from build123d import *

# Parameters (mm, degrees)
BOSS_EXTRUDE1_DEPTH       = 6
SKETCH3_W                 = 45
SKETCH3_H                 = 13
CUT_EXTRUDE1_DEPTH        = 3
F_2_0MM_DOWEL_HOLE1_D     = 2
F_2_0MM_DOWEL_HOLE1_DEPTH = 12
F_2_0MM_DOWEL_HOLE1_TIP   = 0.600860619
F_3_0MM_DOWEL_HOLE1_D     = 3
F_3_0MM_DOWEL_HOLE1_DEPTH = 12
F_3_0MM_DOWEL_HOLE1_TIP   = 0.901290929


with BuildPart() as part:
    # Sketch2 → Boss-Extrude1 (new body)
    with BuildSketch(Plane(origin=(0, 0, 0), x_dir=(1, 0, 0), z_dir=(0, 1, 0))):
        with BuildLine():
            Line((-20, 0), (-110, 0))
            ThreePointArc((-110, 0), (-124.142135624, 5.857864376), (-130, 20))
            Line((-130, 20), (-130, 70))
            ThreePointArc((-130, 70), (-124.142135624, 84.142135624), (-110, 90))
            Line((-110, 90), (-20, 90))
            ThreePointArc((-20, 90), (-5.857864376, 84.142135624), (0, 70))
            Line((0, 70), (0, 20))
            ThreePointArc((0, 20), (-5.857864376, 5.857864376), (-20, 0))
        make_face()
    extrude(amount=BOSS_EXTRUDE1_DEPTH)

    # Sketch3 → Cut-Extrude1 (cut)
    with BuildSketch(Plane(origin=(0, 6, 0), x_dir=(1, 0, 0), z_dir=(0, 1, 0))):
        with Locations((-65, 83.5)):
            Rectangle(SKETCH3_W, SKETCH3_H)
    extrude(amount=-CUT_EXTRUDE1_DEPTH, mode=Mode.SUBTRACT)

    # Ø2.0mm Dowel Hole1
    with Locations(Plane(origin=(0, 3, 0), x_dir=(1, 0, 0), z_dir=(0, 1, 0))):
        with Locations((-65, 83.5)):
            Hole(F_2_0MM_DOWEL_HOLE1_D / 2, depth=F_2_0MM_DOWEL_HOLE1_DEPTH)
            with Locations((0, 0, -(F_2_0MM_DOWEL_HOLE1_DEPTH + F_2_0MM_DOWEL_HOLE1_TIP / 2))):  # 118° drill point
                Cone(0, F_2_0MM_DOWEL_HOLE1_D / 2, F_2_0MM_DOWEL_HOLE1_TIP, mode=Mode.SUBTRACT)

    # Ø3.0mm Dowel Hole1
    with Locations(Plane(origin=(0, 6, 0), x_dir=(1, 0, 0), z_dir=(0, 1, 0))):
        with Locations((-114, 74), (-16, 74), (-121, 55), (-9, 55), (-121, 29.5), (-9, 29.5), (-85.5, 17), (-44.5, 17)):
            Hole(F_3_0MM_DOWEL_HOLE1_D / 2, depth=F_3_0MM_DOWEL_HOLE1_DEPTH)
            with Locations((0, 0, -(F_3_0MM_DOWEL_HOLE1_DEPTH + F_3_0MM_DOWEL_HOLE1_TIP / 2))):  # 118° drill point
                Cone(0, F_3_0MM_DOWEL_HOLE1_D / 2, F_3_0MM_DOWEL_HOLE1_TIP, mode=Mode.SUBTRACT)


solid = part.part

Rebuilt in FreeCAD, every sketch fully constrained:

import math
import FreeCAD as App
import Part
import Sketcher
Q = App.Units.Quantity


def add_polygon(sketch, points):
    """Adds a closed chain of lines whose ends are joined by coincident constraints."""
    first, n = sketch.GeometryCount, len(points)
    for a, b in zip(points, points[1:] + points[:1]):
        sketch.addGeometry(Part.LineSegment(App.Vector(*a, 0), App.Vector(*b, 0)), False)
    for i in range(n):
        sketch.addConstraint(Sketcher.Constraint("Coincident", first + i, 2, first + (i + 1) % n, 1))

doc = App.newDocument("Part")
body = doc.addObject("PartDesign::Body", "Body")

# Sketch on XZ plane
sketch1 = body.newObject("Sketcher::SketchObject", "Sketch")
sketch1.AttachmentSupport = (doc.getObject("XZ_Plane"), [""])
sketch1.MapMode = "FlatFace"
sketch1.addGeometry(Part.LineSegment(App.Vector(-110, 0, 0), App.Vector(-20, 0, 0)), False)
sketch1.addGeometry(Part.ArcOfCircle(Part.Circle(App.Vector(-20, -20, 0), App.Vector(0, 0, 1), 20), math.radians(0), math.radians(90)), False)
sketch1.addGeometry(Part.LineSegment(App.Vector(0, -20, 0), App.Vector(0, -70, 0)), False)
sketch1.addGeometry(Part.ArcOfCircle(Part.Circle(App.Vector(-20, -70, 0), App.Vector(0, 0, 1), 20), math.radians(-90), math.radians(0)), False)
sketch1.addGeometry(Part.LineSegment(App.Vector(-20, -90, 0), App.Vector(-110, -90, 0)), False)
sketch1.addGeometry(Part.ArcOfCircle(Part.Circle(App.Vector(-110, -70, 0), App.Vector(0, 0, 1), 20), math.radians(180), math.radians(270)), False)
sketch1.addGeometry(Part.LineSegment(App.Vector(-130, -70, 0), App.Vector(-130, -20, 0)), False)
sketch1.addGeometry(Part.ArcOfCircle(Part.Circle(App.Vector(-110, -20, 0), App.Vector(0, 0, 1), 20), math.radians(90), math.radians(180)), False)
sketch1.addConstraint(Sketcher.Constraint("Tangent", 0, 2, 1, 2))
sketch1.addConstraint(Sketcher.Constraint("Tangent", 1, 1, 2, 1))
sketch1.addConstraint(Sketcher.Constraint("Tangent", 2, 2, 3, 2))
sketch1.addConstraint(Sketcher.Constraint("Tangent", 3, 1, 4, 1))
sketch1.addConstraint(Sketcher.Constraint("Tangent", 4, 2, 5, 2))
sketch1.addConstraint(Sketcher.Constraint("Tangent", 5, 1, 6, 1))
sketch1.addConstraint(Sketcher.Constraint("Tangent", 6, 2, 7, 2))
sketch1.addConstraint(Sketcher.Constraint("Tangent", 7, 1, 0, 1))
sketch1.addConstraint(Sketcher.Constraint("Horizontal", 0))
sketch1.addConstraint(Sketcher.Constraint("Vertical", 2))
sketch1.addConstraint(Sketcher.Constraint("Horizontal", 4))
sketch1.addConstraint(Sketcher.Constraint("Vertical", 6))
sketch1.addConstraint(Sketcher.Constraint("Equal", 1, 3))
sketch1.addConstraint(Sketcher.Constraint("Equal", 3, 5))
sketch1.addConstraint(Sketcher.Constraint("Equal", 5, 7))
sketch1.addConstraint(Sketcher.Constraint("PointOnObject", 0, 2, -1))
sketch1.addConstraint(Sketcher.Constraint("PointOnObject", 1, 1, -2))
sketch1.addConstraint(Sketcher.Constraint("Radius", 1, Q("20 mm")))
sketch1.addConstraint(Sketcher.Constraint("DistanceX", 0, 1, 0, 2, Q("90 mm")))
sketch1.addConstraint(Sketcher.Constraint("DistanceY", 2, 2, 2, 1, Q("50 mm")))
pad1 = body.newObject("PartDesign::Pad", "Pad")
pad1.Profile = sketch1
pad1.Length = 6
pad1.Reversed = True

# Sketch on XZ plane
sketch2 = body.newObject("Sketcher::SketchObject", "Sketch001")
sketch2.AttachmentSupport = (doc.getObject("XZ_Plane"), [""])
sketch2.MapMode = "FlatFace"
sketch2.AttachmentOffset = App.Placement(App.Vector(0, 0, -6), App.Rotation())
add_polygon(sketch2, [(-88, -90), (-88, -77), (-42, -77), (-42, -90)])  # lines 0-3
sketch2.addConstraint(Sketcher.Constraint("Vertical", 0))
sketch2.addConstraint(Sketcher.Constraint("Horizontal", 1))
sketch2.addConstraint(Sketcher.Constraint("Vertical", 2))
sketch2.addConstraint(Sketcher.Constraint("Horizontal", 3))
sketch2.addConstraint(Sketcher.Constraint("DistanceX", 1, 1, 1, 2, Q("45 mm")))
sketch2.addConstraint(Sketcher.Constraint("DistanceY", 0, 1, 0, 2, Q("13 mm")))
sketch2.addConstraint(Sketcher.Constraint("DistanceY", 0, 2, -1, 1, Q("77 mm")))
sketch2.addConstraint(Sketcher.Constraint("DistanceX", 0, 2, -1, 1, Q("87.5 mm")))
pocket1 = body.newObject("PartDesign::Pocket", "Pocket")
pocket1.Profile = sketch2
pocket1.Length = 3
pocket1.Reversed = True

# Sketch on XZ plane
sketch3 = body.newObject("Sketcher::SketchObject", "Sketch002")
sketch3.AttachmentSupport = (doc.getObject("XZ_Plane"), [""])
sketch3.MapMode = "FlatFace"
sketch3.AttachmentOffset = App.Placement(App.Vector(0, 0, -3), App.Rotation())
sketch3.addGeometry(Part.Circle(App.Vector(-65, -83.5, 0), App.Vector(0, 0, 1), 1), False)
sketch3.addConstraint(Sketcher.Constraint("Diameter", 0, Q("2 mm")))
sketch3.addConstraint(Sketcher.Constraint("DistanceX", 0, 3, -1, 1, Q("65 mm")))
sketch3.addConstraint(Sketcher.Constraint("DistanceY", 0, 3, -1, 1, Q("83.5 mm")))
doc.recompute()
hole = body.newObject("PartDesign::Hole", "Hole")
hole.Profile = sketch3
hole.ThreadType = "None"
hole.Diameter = 2
hole.DepthType = "Dimension"
hole.Depth = 12
hole.DrillPoint = "Angled"
hole.DrillPointAngle = 118
hole.Reversed = True

# Sketch on XZ plane
sketch4 = body.newObject("Sketcher::SketchObject", "Sketch003")
sketch4.AttachmentSupport = (doc.getObject("XZ_Plane"), [""])
sketch4.MapMode = "FlatFace"
sketch4.AttachmentOffset = App.Placement(App.Vector(0, 0, -6), App.Rotation())
sketch4.addGeometry(Part.Circle(App.Vector(-114, -74, 0), App.Vector(0, 0, 1), 1.5), False)
sketch4.addGeometry(Part.Circle(App.Vector(-16, -74, 0), App.Vector(0, 0, 1), 1.5), False)
sketch4.addGeometry(Part.Circle(App.Vector(-121, -55, 0), App.Vector(0, 0, 1), 1.5), False)
sketch4.addGeometry(Part.Circle(App.Vector(-9, -55, 0), App.Vector(0, 0, 1), 1.5), False)
sketch4.addGeometry(Part.Circle(App.Vector(-121, -29.5, 0), App.Vector(0, 0, 1), 1.5), False)
sketch4.addGeometry(Part.Circle(App.Vector(-9, -29.5, 0), App.Vector(0, 0, 1), 1.5), False)
sketch4.addGeometry(Part.Circle(App.Vector(-85.5, -17, 0), App.Vector(0, 0, 1), 1.5), False)
sketch4.addGeometry(Part.Circle(App.Vector(-44.5, -17, 0), App.Vector(0, 0, 1), 1.5), False)
sketch4.addConstraint(Sketcher.Constraint("Equal", 0, 1))
sketch4.addConstraint(Sketcher.Constraint("Equal", 1, 2))
sketch4.addConstraint(Sketcher.Constraint("Equal", 2, 3))
sketch4.addConstraint(Sketcher.Constraint("Equal", 3, 4))
sketch4.addConstraint(Sketcher.Constraint("Equal", 4, 5))
sketch4.addConstraint(Sketcher.Constraint("Equal", 5, 6))
sketch4.addConstraint(Sketcher.Constraint("Equal", 6, 7))
sketch4.addConstraint(Sketcher.Constraint("Horizontal", 0, 3, 1, 3))
sketch4.addConstraint(Sketcher.Constraint("Horizontal", 2, 3, 3, 3))
sketch4.addConstraint(Sketcher.Constraint("Horizontal", 4, 3, 5, 3))
sketch4.addConstraint(Sketcher.Constraint("Horizontal", 6, 3, 7, 3))
sketch4.addConstraint(Sketcher.Constraint("Vertical", 2, 3, 4, 3))
sketch4.addConstraint(Sketcher.Constraint("Vertical", 3, 3, 5, 3))
sketch4.addConstraint(Sketcher.Constraint("Diameter", 0, Q("3 mm")))
sketch4.addConstraint(Sketcher.Constraint("DistanceX", 0, 3, -1, 1, Q("114 mm")))
sketch4.addConstraint(Sketcher.Constraint("DistanceY", 0, 3, -1, 1, Q("74 mm")))
sketch4.addConstraint(Sketcher.Constraint("DistanceX", 1, 3, -1, 1, Q("16 mm")))
sketch4.addConstraint(Sketcher.Constraint("DistanceX", 2, 3, -1, 1, Q("121 mm")))
sketch4.addConstraint(Sketcher.Constraint("DistanceY", 2, 3, -1, 1, Q("55 mm")))
sketch4.addConstraint(Sketcher.Constraint("DistanceX", 3, 3, -1, 1, Q("9 mm")))
sketch4.addConstraint(Sketcher.Constraint("DistanceY", 6, 3, -1, 1, Q("17 mm")))
sketch4.addConstraint(Sketcher.Constraint("DistanceX", 6, 3, 7, 3, Q("41 mm")))
sketch4.addConstraint(Sketcher.Constraint("DistanceY", 4, 3, -1, 1, Q("29.5 mm")))
sketch4.addConstraint(Sketcher.Constraint("DistanceX", 6, 3, -1, 1, Q("85.5 mm")))
doc.recompute()
hole2 = body.newObject("PartDesign::Hole", "Hole001")
hole2.Profile = sketch4
hole2.ThreadType = "None"
hole2.Diameter = 3
hole2.DepthType = "Dimension"
hole2.Depth = 12
hole2.DrillPoint = "Angled"
hole2.DrillPointAngle = 118
hole2.Reversed = True

doc.recompute()
